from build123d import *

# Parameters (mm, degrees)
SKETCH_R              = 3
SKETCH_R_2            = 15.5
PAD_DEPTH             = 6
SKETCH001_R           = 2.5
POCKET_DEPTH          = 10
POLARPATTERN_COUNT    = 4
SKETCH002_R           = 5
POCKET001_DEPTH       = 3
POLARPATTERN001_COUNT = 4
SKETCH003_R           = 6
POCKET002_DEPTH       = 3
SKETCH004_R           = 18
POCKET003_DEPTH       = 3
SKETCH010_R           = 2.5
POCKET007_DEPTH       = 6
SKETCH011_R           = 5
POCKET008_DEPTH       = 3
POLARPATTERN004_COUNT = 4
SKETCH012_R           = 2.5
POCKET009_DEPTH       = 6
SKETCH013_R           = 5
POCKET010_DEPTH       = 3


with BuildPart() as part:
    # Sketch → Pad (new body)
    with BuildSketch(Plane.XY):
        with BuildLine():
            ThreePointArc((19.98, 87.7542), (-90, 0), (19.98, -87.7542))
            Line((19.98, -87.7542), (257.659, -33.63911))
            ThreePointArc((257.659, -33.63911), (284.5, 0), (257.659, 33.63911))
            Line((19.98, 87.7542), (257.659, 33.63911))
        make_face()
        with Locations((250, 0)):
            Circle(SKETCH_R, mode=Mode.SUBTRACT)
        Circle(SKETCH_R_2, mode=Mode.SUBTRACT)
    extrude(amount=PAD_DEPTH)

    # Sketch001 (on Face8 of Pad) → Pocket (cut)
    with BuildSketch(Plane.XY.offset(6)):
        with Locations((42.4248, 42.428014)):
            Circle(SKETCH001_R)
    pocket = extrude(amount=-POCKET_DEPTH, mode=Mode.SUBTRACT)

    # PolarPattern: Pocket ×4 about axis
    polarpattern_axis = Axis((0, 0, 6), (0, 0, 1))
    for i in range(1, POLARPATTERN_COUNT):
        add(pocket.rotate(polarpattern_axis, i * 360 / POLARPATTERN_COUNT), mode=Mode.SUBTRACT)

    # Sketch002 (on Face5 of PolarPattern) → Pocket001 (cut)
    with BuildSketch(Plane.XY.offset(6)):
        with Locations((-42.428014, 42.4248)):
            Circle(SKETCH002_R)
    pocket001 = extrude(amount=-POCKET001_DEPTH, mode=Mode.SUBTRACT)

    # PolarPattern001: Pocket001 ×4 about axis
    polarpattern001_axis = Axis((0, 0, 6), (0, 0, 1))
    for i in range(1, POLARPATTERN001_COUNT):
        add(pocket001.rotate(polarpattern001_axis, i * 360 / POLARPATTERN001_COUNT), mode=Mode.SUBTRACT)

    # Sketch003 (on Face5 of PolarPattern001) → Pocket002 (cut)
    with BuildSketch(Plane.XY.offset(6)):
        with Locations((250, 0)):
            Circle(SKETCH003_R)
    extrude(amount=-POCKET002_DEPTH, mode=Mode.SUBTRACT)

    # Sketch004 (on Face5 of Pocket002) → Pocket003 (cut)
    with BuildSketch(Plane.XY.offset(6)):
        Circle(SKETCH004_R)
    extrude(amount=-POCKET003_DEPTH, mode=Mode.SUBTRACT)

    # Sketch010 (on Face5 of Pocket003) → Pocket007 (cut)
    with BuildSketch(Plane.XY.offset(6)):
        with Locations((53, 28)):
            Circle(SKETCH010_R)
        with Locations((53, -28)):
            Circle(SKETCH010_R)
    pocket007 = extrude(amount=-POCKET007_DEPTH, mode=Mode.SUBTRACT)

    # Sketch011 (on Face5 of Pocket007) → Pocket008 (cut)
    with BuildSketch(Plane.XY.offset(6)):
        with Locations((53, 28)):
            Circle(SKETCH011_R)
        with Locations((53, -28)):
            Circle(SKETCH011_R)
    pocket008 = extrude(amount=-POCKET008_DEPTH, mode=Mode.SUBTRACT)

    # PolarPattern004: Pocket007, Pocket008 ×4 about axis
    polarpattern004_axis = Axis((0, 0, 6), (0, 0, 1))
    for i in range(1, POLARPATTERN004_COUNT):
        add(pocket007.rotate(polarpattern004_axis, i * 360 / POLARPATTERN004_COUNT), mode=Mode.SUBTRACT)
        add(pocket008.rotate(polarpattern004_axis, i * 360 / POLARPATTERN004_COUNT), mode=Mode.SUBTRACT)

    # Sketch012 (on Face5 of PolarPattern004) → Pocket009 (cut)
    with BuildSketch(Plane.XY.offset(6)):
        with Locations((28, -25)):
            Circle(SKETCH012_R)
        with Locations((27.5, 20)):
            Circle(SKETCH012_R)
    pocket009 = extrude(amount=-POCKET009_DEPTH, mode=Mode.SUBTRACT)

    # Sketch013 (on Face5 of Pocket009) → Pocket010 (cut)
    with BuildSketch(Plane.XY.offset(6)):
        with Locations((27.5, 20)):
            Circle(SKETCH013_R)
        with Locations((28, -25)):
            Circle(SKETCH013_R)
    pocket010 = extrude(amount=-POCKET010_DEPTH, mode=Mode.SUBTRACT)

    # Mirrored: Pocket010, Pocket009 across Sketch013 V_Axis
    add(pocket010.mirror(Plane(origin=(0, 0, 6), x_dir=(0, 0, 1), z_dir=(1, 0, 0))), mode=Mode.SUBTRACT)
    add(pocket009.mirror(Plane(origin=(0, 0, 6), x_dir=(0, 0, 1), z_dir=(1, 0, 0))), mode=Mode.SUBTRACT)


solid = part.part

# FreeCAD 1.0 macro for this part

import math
import FreeCAD as App
import Part
import Sketcher
Q = App.Units.Quantity

doc = App.newDocument("Part")
params = doc.addObject("Spreadsheet::Sheet", "Params")
for row, (alias, value) in enumerate([
    ("sketch1_diameter", "31 mm"),
    ("sketch1_diameter2", "6 mm"),
    ("sketch1_radius", "90 mm"),
    ("sketch1_radius2", "34.5 mm"),
    ("pad1_length", "6 mm"),
    ("sketch2_diameter", "5 mm"),
    ("pocket1_length", "10 mm"),
    ("sketch3_diameter", "10 mm"),
    ("pocket2_length", "3 mm"),
    ("sketch4_diameter", "12 mm"),
    ("pocket3_length", "3 mm"),
    ("sketch5_diameter", "36 mm"),
    ("pocket4_length", "3 mm"),
    ("sketch6_diameter", "5 mm"),
    ("pocket5_length", "6 mm"),
    ("sketch7_diameter", "10 mm"),
    ("pocket6_length", "3 mm"),
    ("sketch8_diameter", "5 mm"),
    ("pocket7_length", "6 mm"),
    ("sketch9_diameter", "10 mm"),
    ("pocket8_length", "3 mm"),
], start=1):
    params.set(f"A{row}", alias)
    params.set(f"B{row}", "=" + value)
    params.setAlias(f"B{row}", alias)

body = doc.addObject("PartDesign::Body", "Body")

sketch1 = doc.addObject("Sketcher::SketchObject", "Sketch")
body.addObject(sketch1)
sketch1.AttachmentSupport = (doc.XY_Plane, [""])
sketch1.MapMode = "FlatFace"
sketch1.addGeometry(Part.ArcOfCircle(Part.Circle(App.Vector(0, 0, 0), App.Vector(0, 0, 1), 90), math.radians(77.17347), math.radians(282.82653)), False)
sketch1.addGeometry(Part.LineSegment(App.Vector(19.98, -87.7542, 0), App.Vector(257.659, -33.63911, 0)), False)
sketch1.addGeometry(Part.ArcOfCircle(Part.Circle(App.Vector(250, 0, 0), App.Vector(0, 0, 1), 34.5), math.radians(-77.17347), math.radians(77.17347)), False)
sketch1.addGeometry(Part.LineSegment(App.Vector(257.659, 33.63911, 0), App.Vector(19.98, 87.7542, 0)), False)
sketch1.addGeometry(Part.Circle(App.Vector(0, 0, 0), App.Vector(0, 0, 1), 15.5), False)
sketch1.addGeometry(Part.Circle(App.Vector(250, 0, 0), App.Vector(0, 0, 1), 3), False)
sketch1.addConstraint(Sketcher.Constraint("Tangent", 0, 2, 1, 1))
sketch1.addConstraint(Sketcher.Constraint("Tangent", 1, 2, 2, 1))
sketch1.addConstraint(Sketcher.Constraint("Tangent", 2, 2, 3, 1))
sketch1.addConstraint(Sketcher.Constraint("Tangent", 3, 2, 0, 1))
sketch1.addConstraint(Sketcher.Constraint("Coincident", 0, 3, -1, 1))
sketch1.addConstraint(Sketcher.Constraint("Coincident", 4, 3, -1, 1))
sketch1.addConstraint(Sketcher.Constraint("Coincident", 5, 3, 2, 3))
sketch1.addConstraint(Sketcher.Constraint("PointOnObject", 2, 3, -1))
sketch1.addConstraint(Sketcher.Constraint("Diameter", 4, Q("31 mm")))
sketch1.addConstraint(Sketcher.Constraint("Diameter", 5, Q("6 mm")))
sketch1.addConstraint(Sketcher.Constraint("Radius", 0, Q("90 mm")))
sketch1.addConstraint(Sketcher.Constraint("Radius", 2, Q("34.5 mm")))
sketch1.addConstraint(Sketcher.Constraint("DistanceX", -1, 1, 2, 3, Q("250 mm")))
sketch1.setExpression("Constraints[8]", "Params.sketch1_diameter")
sketch1.setExpression("Constraints[9]", "Params.sketch1_diameter2")
sketch1.setExpression("Constraints[10]", "Params.sketch1_radius")
sketch1.setExpression("Constraints[11]", "Params.sketch1_radius2")
pad1 = doc.addObject("PartDesign::Pad", "Pad")
body.addObject(pad1)
pad1.Profile = sketch1
pad1.setExpression("Length", "Params.pad1_length")

sketch2 = doc.addObject("Sketcher::SketchObject", "Sketch001")
body.addObject(sketch2)
sketch2.AttachmentSupport = (doc.XY_Plane, [""])
sketch2.MapMode = "FlatFace"
sketch2.AttachmentOffset = App.Placement(App.Vector(0, 0, 6), App.Rotation())
sketch2.addGeometry(Part.Circle(App.Vector(42.4248, 42.428014, 0), App.Vector(0, 0, 1), 2.5), False)
sketch2.addConstraint(Sketcher.Constraint("Diameter", 0, Q("5 mm")))
sketch2.addConstraint(Sketcher.Constraint("DistanceX", -1, 1, 0, 3, Q("42.4248 mm")))
sketch2.addConstraint(Sketcher.Constraint("DistanceY", -1, 1, 0, 3, Q("42.428014 mm")))
sketch2.setExpression("Constraints[0]", "Params.sketch2_diameter")
pocket1 = doc.addObject("PartDesign::Pocket", "Pocket")
body.addObject(pocket1)
pocket1.Profile = sketch2
pocket1.setExpression("Length", "Params.pocket1_length")
doc.recompute()

polarpattern = doc.addObject("PartDesign::PolarPattern", "PolarPattern")
body.addObject(polarpattern)
polarpattern.Originals = [pocket1]
polarpattern.Axis = (doc.Z_Axis, [""])
polarpattern.Angle = 360
polarpattern.Occurrences = 4
body.Tip = polarpattern

sketch3 = doc.addObject("Sketcher::SketchObject", "Sketch002")
body.addObject(sketch3)
sketch3.AttachmentSupport = (doc.XY_Plane, [""])
sketch3.MapMode = "FlatFace"
sketch3.AttachmentOffset = App.Placement(App.Vector(0, 0, 6), App.Rotation())
sketch3.addGeometry(Part.Circle(App.Vector(-42.428014, 42.4248, 0), App.Vector(0, 0, 1), 5), False)
sketch3.addConstraint(Sketcher.Constraint("Diameter", 0, Q("10 mm")))
sketch3.addConstraint(Sketcher.Constraint("DistanceY", -1, 1, 0, 3, Q("42.4248 mm")))
sketch3.addConstraint(Sketcher.Constraint("DistanceX", 0, 3, -1, 1, Q("42.428014 mm")))
sketch3.setExpression("Constraints[0]", "Params.sketch3_diameter")
pocket2 = doc.addObject("PartDesign::Pocket", "Pocket001")
body.addObject(pocket2)
pocket2.Profile = sketch3
pocket2.setExpression("Length", "Params.pocket2_length")
doc.recompute()

polarpattern2 = doc.addObject("PartDesign::PolarPattern", "PolarPattern001")
body.addObject(polarpattern2)
polarpattern2.Originals = [pocket2]
polarpattern2.Axis = (doc.Z_Axis, [""])
polarpattern2.Angle = 360
polarpattern2.Occurrences = 4
body.Tip = polarpattern2

sketch4 = doc.addObject("Sketcher::SketchObject", "Sketch003")
body.addObject(sketch4)
sketch4.AttachmentSupport = (doc.XY_Plane, [""])
sketch4.MapMode = "FlatFace"
sketch4.AttachmentOffset = App.Placement(App.Vector(0, 0, 6), App.Rotation())
sketch4.addGeometry(Part.Circle(App.Vector(250, 0, 0), App.Vector(0, 0, 1), 6), False)
sketch4.addConstraint(Sketcher.Constraint("PointOnObject", 0, 3, -1))
sketch4.addConstraint(Sketcher.Constraint("Diameter", 0, Q("12 mm")))
sketch4.addConstraint(Sketcher.Constraint("DistanceX", -1, 1, 0, 3, Q("250 mm")))
sketch4.setExpression("Constraints[1]", "Params.sketch4_diameter")
pocket3 = doc.addObject("PartDesign::Pocket", "Pocket002")
body.addObject(pocket3)
pocket3.Profile = sketch4
pocket3.setExpression("Length", "Params.pocket3_length")

sketch5 = doc.addObject("Sketcher::SketchObject", "Sketch004")
body.addObject(sketch5)
sketch5.AttachmentSupport = (doc.XY_Plane, [""])
sketch5.MapMode = "FlatFace"
sketch5.AttachmentOffset = App.Placement(App.Vector(0, 0, 6), App.Rotation())
sketch5.addGeometry(Part.Circle(App.Vector(0, 0, 0), App.Vector(0, 0, 1), 18), False)
sketch5.addConstraint(Sketcher.Constraint("Coincident", 0, 3, -1, 1))
sketch5.addConstraint(Sketcher.Constraint("Diameter", 0, Q("36 mm")))
sketch5.setExpression("Constraints[1]", "Params.sketch5_diameter")
pocket4 = doc.addObject("PartDesign::Pocket", "Pocket003")
body.addObject(pocket4)
pocket4.Profile = sketch5
pocket4.setExpression("Length", "Params.pocket4_length")

sketch6 = doc.addObject("Sketcher::SketchObject", "Sketch005")
body.addObject(sketch6)
sketch6.AttachmentSupport = (doc.XY_Plane, [""])
sketch6.MapMode = "FlatFace"
sketch6.AttachmentOffset = App.Placement(App.Vector(0, 0, 6), App.Rotation())
sketch6.addGeometry(Part.Circle(App.Vector(53, 28, 0), App.Vector(0, 0, 1), 2.5), False)
sketch6.addGeometry(Part.Circle(App.Vector(53, -28, 0), App.Vector(0, 0, 1), 2.5), False)
sketch6.addConstraint(Sketcher.Constraint("Equal", 0, 1))
sketch6.addConstraint(Sketcher.Constraint("Symmetric", 0, 3, 1, 3, -1))
sketch6.addConstraint(Sketcher.Constraint("Diameter", 0, Q("5 mm")))
sketch6.addConstraint(Sketcher.Constraint("DistanceX", -1, 1, 0, 3, Q("53 mm")))
sketch6.addConstraint(Sketcher.Constraint("DistanceY", -1, 1, 0, 3, Q("28 mm")))
sketch6.setExpression("Constraints[2]", "Params.sketch6_diameter")
pocket5 = doc.addObject("PartDesign::Pocket", "Pocket004")
body.addObject(pocket5)
pocket5.Profile = sketch6
pocket5.setExpression("Length", "Params.pocket5_length")

sketch7 = doc.addObject("Sketcher::SketchObject", "Sketch006")
body.addObject(sketch7)
sketch7.AttachmentSupport = (doc.XY_Plane, [""])
sketch7.MapMode = "FlatFace"
sketch7.AttachmentOffset = App.Placement(App.Vector(0, 0, 6), App.Rotation())
sketch7.addGeometry(Part.Circle(App.Vector(53, 28, 0), App.Vector(0, 0, 1), 5), False)
sketch7.addGeometry(Part.Circle(App.Vector(53, -28, 0), App.Vector(0, 0, 1), 5), False)
sketch7.addConstraint(Sketcher.Constraint("Equal", 0, 1))
sketch7.addConstraint(Sketcher.Constraint("Symmetric", 0, 3, 1, 3, -1))
sketch7.addConstraint(Sketcher.Constraint("Diameter", 0, Q("10 mm")))
sketch7.addConstraint(Sketcher.Constraint("DistanceX", -1, 1, 0, 3, Q("53 mm")))
sketch7.addConstraint(Sketcher.Constraint("DistanceY", -1, 1, 0, 3, Q("28 mm")))
sketch7.setExpression("Constraints[2]", "Params.sketch7_diameter")
pocket6 = doc.addObject("PartDesign::Pocket", "Pocket005")
body.addObject(pocket6)
pocket6.Profile = sketch7
pocket6.setExpression("Length", "Params.pocket6_length")
doc.recompute()

polarpattern3 = doc.addObject("PartDesign::PolarPattern", "PolarPattern002")
body.addObject(polarpattern3)
polarpattern3.Originals = [pocket5, pocket6]
polarpattern3.Axis = (doc.Z_Axis, [""])
polarpattern3.Angle = 360
polarpattern3.Occurrences = 4
body.Tip = polarpattern3

sketch8 = doc.addObject("Sketcher::SketchObject", "Sketch007")
body.addObject(sketch8)
sketch8.AttachmentSupport = (doc.XY_Plane, [""])
sketch8.MapMode = "FlatFace"
sketch8.AttachmentOffset = App.Placement(App.Vector(0, 0, 6), App.Rotation())
sketch8.addGeometry(Part.Circle(App.Vector(28, -25, 0), App.Vector(0, 0, 1), 2.5), False)
sketch8.addGeometry(Part.Circle(App.Vector(27.5, 20, 0), App.Vector(0, 0, 1), 2.5), False)
sketch8.addConstraint(Sketcher.Constraint("Equal", 0, 1))
sketch8.addConstraint(Sketcher.Constraint("Diameter", 0, Q("5 mm")))
sketch8.addConstraint(Sketcher.Constraint("DistanceX", -1, 1, 0, 3, Q("28 mm")))
sketch8.addConstraint(Sketcher.Constraint("DistanceY", 0, 3, -1, 1, Q("25 mm")))
sketch8.addConstraint(Sketcher.Constraint("DistanceY", -1, 1, 1, 3, Q("20 mm")))
sketch8.addConstraint(Sketcher.Constraint("DistanceX", -1, 1, 1, 3, Q("27.5 mm")))
sketch8.setExpression("Constraints[1]", "Params.sketch8_diameter")
pocket7 = doc.addObject("PartDesign::Pocket", "Pocket006")
body.addObject(pocket7)
pocket7.Profile = sketch8
pocket7.setExpression("Length", "Params.pocket7_length")

sketch9 = doc.addObject("Sketcher::SketchObject", "Sketch008")
body.addObject(sketch9)
sketch9.AttachmentSupport = (doc.XY_Plane, [""])
sketch9.MapMode = "FlatFace"
sketch9.AttachmentOffset = App.Placement(App.Vector(0, 0, 6), App.Rotation())
sketch9.addGeometry(Part.Circle(App.Vector(27.5, 20, 0), App.Vector(0, 0, 1), 5), False)
sketch9.addGeometry(Part.Circle(App.Vector(28, -25, 0), App.Vector(0, 0, 1), 5), False)
sketch9.addConstraint(Sketcher.Constraint("Equal", 0, 1))
sketch9.addConstraint(Sketcher.Constraint("Diameter", 0, Q("10 mm")))
sketch9.addConstraint(Sketcher.Constraint("DistanceY", -1, 1, 0, 3, Q("20 mm")))
sketch9.addConstraint(Sketcher.Constraint("DistanceX", -1, 1, 1, 3, Q("28 mm")))
sketch9.addConstraint(Sketcher.Constraint("DistanceY", 1, 3, -1, 1, Q("25 mm")))
sketch9.addConstraint(Sketcher.Constraint("DistanceX", -1, 1, 0, 3, Q("27.5 mm")))
sketch9.setExpression("Constraints[1]", "Params.sketch9_diameter")
pocket8 = doc.addObject("PartDesign::Pocket", "Pocket007")
body.addObject(pocket8)
pocket8.Profile = sketch9
pocket8.setExpression("Length", "Params.pocket8_length")
doc.recompute()

mirrored = doc.addObject("PartDesign::Mirrored", "Mirrored")
body.addObject(mirrored)
mirrored.Originals = [pocket8, pocket7]
mirrored.MirrorPlane = (doc.YZ_Plane, [""])
body.Tip = mirrored

doc.recompute()
